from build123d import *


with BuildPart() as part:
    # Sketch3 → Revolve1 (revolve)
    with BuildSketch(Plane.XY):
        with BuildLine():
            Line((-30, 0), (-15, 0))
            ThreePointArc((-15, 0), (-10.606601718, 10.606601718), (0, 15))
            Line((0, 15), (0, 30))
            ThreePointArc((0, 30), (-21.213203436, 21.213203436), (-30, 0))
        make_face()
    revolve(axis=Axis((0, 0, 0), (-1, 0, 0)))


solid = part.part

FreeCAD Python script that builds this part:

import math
import FreeCAD as App
import Part
import Sketcher
from FreeCAD import Vector

doc = App.newDocument("Part")
params = doc.addObject("Spreadsheet::Sheet", "Params")
for row, (alias, value) in enumerate([
    ("sketch1_radius", "15 mm"),
    ("sketch1_radius2", "30 mm"),
    ("revolution_angle", "360 deg"),
], start=1):
    params.set(f"A{row}", alias)
    params.set(f"B{row}", "=" + value)
    params.setAlias(f"B{row}", alias)

body = doc.addObject("PartDesign::Body", "Body")

sketch1 = body.newObject("Sketcher::SketchObject", "Sketch")
sketch1.AttachmentSupport = (doc.getObject("XY_Plane"), [""])
sketch1.MapMode = "FlatFace"
sketch1.addGeometry([
    Part.LineSegment(Vector(-30, 0, 0), Vector(-15, 0, 0)),
    Part.ArcOfCircle(Part.Circle(Vector(0, 0, 0), Vector(0, 0, 1), 15), math.radians(90), math.radians(180)),
    Part.LineSegment(Vector(0, 15, 0), Vector(0, 30, 0)),
    Part.ArcOfCircle(Part.Circle(Vector(0, 0, 0), Vector(0, 0, 1), 30), math.radians(90), math.radians(180)),
], False)
sketch1.addConstraint([
    Sketcher.Constraint("Coincident", 0, 2, 1, 2),
    Sketcher.Constraint("Coincident", 1, 1, 2, 1),
    Sketcher.Constraint("Coincident", 2, 2, 3, 1),
    Sketcher.Constraint("Coincident", 3, 2, 0, 1),
    Sketcher.Constraint("Horizontal", 0),
    Sketcher.Constraint("Vertical", 2),
    Sketcher.Constraint("Coincident", 1, 3, -1, 1),
    Sketcher.Constraint("Coincident", 3, 3, -1, 1),
    Sketcher.Constraint("PointOnObject", 0, 2, -1),
    Sketcher.Constraint("PointOnObject", 1, 1, -2),
    Sketcher.Constraint("Radius", 1, 15.0),
    Sketcher.Constraint("Radius", 3, 30.0),
])
sketch1.setExpression("Constraints[10]", "Params.sketch1_radius")
sketch1.setExpression("Constraints[11]", "Params.sketch1_radius2")
revolution = body.newObject("PartDesign::Revolution", "Revolution")
revolution.Profile = sketch1
revolution.ReferenceAxis = (sketch1, ["H_Axis"])
revolution.setExpression("Angle", "Params.revolution_angle")

doc.recompute()
